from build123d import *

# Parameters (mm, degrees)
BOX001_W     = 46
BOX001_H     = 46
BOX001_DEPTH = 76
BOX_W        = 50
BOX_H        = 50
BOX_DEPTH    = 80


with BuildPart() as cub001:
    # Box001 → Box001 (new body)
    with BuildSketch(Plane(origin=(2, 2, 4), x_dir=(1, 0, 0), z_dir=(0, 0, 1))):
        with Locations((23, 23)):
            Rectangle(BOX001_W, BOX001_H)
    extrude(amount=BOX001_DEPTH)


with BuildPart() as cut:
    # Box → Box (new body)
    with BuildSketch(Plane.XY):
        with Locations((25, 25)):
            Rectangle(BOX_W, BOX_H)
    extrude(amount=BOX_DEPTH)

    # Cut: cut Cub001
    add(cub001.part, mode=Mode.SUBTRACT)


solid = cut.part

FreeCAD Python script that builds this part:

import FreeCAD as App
import Part
import Sketcher
from FreeCAD import Vector
Q = App.Units.Quantity

doc = App.newDocument("Part")
body = doc.addObject("PartDesign::Body", "Body")

sketch1 = body.newObject("Sketcher::SketchObject", "Sketch")
sketch1.AttachmentSupport = (doc.getObject("XY_Plane"), [""])
sketch1.MapMode = "FlatFace"
sketch1.AttachmentOffset = App.Placement(Vector(0, 0, 4), App.Rotation())
sketch1.addGeometry([
    Part.LineSegment(Vector(2, 48, 0), Vector(2, 2, 0)),
    Part.LineSegment(Vector(2, 2, 0), Vector(48, 2, 0)),
    Part.LineSegment(Vector(48, 2, 0), Vector(48, 48, 0)),
    Part.LineSegment(Vector(48, 48, 0), Vector(2, 48, 0)),
], False)
sketch1.addConstraint([
    Sketcher.Constraint("Coincident", 0, 2, 1, 1),
    Sketcher.Constraint("Coincident", 1, 2, 2, 1),
    Sketcher.Constraint("Coincident", 2, 2, 3, 1),
    Sketcher.Constraint("Coincident", 3, 2, 0, 1),
    Sketcher.Constraint("Vertical", 0),
    Sketcher.Constraint("Horizontal", 1),
    Sketcher.Constraint("Vertical", 2),
    Sketcher.Constraint("Horizontal", 3),
    Sketcher.Constraint("Equal", 3, 0),
    Sketcher.Constraint("DistanceX", 1, 1, 1, 2, Q("46 mm")),
    Sketcher.Constraint("DistanceX", -1, 1, 0, 2, Q("2 mm")),
    Sketcher.Constraint("DistanceY", -1, 1, 0, 2, Q("2 mm")),
])
pad1 = body.newObject("PartDesign::Pad", "Pad")
pad1.Profile = sketch1
pad1.Length = 76
body2 = doc.addObject("PartDesign::Body", "Body001")

sketch2 = body2.newObject("Sketcher::SketchObject", "Sketch001")
sketch2.AttachmentSupport = (doc.getObject("XY_Plane001"), [""])
sketch2.MapMode = "FlatFace"
sketch2.addGeometry([
    Part.LineSegment(Vector(0, 50, 0), Vector(0, 0, 0)),
    Part.LineSegment(Vector(0, 0, 0), Vector(50, 0, 0)),
    Part.LineSegment(Vector(50, 0, 0), Vector(50, 50, 0)),
    Part.LineSegment(Vector(50, 50, 0), Vector(0, 50, 0)),
], False)
sketch2.addConstraint([
    Sketcher.Constraint("Coincident", 0, 2, 1, 1),
    Sketcher.Constraint("Coincident", 1, 2, 2, 1),
    Sketcher.Constraint("Coincident", 2, 2, 3, 1),
    Sketcher.Constraint("Coincident", 3, 2, 0, 1),
    Sketcher.Constraint("Vertical", 0),
    Sketcher.Constraint("Horizontal", 1),
    Sketcher.Constraint("Vertical", 2),
    Sketcher.Constraint("Horizontal", 3),
    Sketcher.Constraint("Coincident", 0, 2, -1, 1),
    Sketcher.Constraint("Equal", 3, 0),
    Sketcher.Constraint("DistanceX", 1, 1, 1, 2, Q("50 mm")),
])
pad2 = body2.newObject("PartDesign::Pad", "Pad001")
pad2.Profile = sketch2
pad2.Length = 80
doc.recompute()

boolean = body2.newObject("PartDesign::Boolean", "Boolean")
boolean.Type = "Cut"
boolean.addObjects([body])

doc.recompute()
